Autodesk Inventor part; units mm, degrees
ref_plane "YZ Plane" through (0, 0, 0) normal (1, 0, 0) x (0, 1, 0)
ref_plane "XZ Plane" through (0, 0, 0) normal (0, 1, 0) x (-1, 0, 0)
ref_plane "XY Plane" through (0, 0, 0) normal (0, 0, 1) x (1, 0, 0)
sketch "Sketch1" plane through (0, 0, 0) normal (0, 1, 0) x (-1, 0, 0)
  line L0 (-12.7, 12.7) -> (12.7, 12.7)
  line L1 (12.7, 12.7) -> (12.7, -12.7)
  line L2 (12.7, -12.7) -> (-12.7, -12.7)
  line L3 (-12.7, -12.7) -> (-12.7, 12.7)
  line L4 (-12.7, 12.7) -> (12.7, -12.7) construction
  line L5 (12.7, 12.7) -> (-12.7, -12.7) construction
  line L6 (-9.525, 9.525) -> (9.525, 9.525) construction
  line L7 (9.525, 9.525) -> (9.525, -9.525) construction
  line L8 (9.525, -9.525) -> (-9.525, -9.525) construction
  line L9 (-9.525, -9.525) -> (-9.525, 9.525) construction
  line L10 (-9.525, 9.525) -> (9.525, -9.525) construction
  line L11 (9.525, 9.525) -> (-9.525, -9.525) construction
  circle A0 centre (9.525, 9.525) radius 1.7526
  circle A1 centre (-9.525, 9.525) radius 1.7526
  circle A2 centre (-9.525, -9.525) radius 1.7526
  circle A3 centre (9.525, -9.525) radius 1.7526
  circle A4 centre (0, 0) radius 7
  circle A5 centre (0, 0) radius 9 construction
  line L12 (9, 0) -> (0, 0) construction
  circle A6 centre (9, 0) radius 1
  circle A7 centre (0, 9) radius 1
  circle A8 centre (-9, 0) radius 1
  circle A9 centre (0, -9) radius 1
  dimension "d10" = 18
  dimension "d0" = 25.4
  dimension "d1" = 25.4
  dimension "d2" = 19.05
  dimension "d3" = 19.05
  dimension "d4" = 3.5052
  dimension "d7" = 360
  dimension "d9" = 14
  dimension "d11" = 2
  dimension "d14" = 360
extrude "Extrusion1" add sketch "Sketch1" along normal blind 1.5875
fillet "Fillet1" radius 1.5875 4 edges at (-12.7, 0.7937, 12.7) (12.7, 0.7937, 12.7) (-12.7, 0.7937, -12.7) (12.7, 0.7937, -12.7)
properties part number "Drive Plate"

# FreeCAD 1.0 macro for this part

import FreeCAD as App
import Part
import Sketcher
Q = App.Units.Quantity


def edges_at(feature, points):
    """Names of the edges that pass closest to the given points."""
    edges = feature.Shape.Edges
    near = lambda p: min(range(len(edges)), key=lambda i: edges[i].distToShape(Part.Vertex(*p))[0])
    return sorted({f"Edge{near(p) + 1}" for p in points})

doc = App.newDocument("Part")
body = doc.addObject("PartDesign::Body", "Body")

# Sketch on XZ plane
sketch1 = body.newObject("Sketcher::SketchObject", "Sketch")
sketch1.AttachmentSupport = (doc.getObject("XZ_Plane"), [""])
sketch1.MapMode = "FlatFace"
sketch1.addGeometry(Part.LineSegment(App.Vector(-12.7, 12.7, 0), App.Vector(12.7, 12.7, 0)), False)
sketch1.addGeometry(Part.LineSegment(App.Vector(12.7, 12.7, 0), App.Vector(12.7, -12.7, 0)), False)
sketch1.addGeometry(Part.LineSegment(App.Vector(12.7, -12.7, 0), App.Vector(-12.7, -12.7, 0)), False)
sketch1.addGeometry(Part.LineSegment(App.Vector(-12.7, -12.7, 0), App.Vector(-12.7, 12.7, 0)), False)
sketch1.addGeometry(Part.Circle(App.Vector(9.5, -9.5, 0), App.Vector(0, 0, 1), 1.8), False)
sketch1.addGeometry(Part.Circle(App.Vector(0, -9, 0), App.Vector(0, 0, 1), 1), False)
sketch1.addGeometry(Part.Circle(App.Vector(9, 0, 0), App.Vector(0, 0, 1), 1), False)
sketch1.addGeometry(Part.Circle(App.Vector(0, 0, 0), App.Vector(0, 0, 1), 7), False)
sketch1.addGeometry(Part.Circle(App.Vector(-9.5, -9.5, 0), App.Vector(0, 0, 1), 1.8), False)
sketch1.addGeometry(Part.Circle(App.Vector(-9, 0, 0), App.Vector(0, 0, 1), 1), False)
sketch1.addGeometry(Part.Circle(App.Vector(9.5, 9.5, 0), App.Vector(0, 0, 1), 1.8), False)
sketch1.addGeometry(Part.Circle(App.Vector(0, 9, 0), App.Vector(0, 0, 1), 1), False)
sketch1.addGeometry(Part.Circle(App.Vector(-9.5, 9.5, 0), App.Vector(0, 0, 1), 1.8), False)
sketch1.addConstraint(Sketcher.Constraint("Coincident", 0, 2, 1, 1))
sketch1.addConstraint(Sketcher.Constraint("Coincident", 1, 2, 2, 1))
sketch1.addConstraint(Sketcher.Constraint("Coincident", 2, 2, 3, 1))
sketch1.addConstraint(Sketcher.Constraint("Coincident", 3, 2, 0, 1))
sketch1.addConstraint(Sketcher.Constraint("Horizontal", 0))
sketch1.addConstraint(Sketcher.Constraint("Vertical", 1))
sketch1.addConstraint(Sketcher.Constraint("Horizontal", 2))
sketch1.addConstraint(Sketcher.Constraint("Vertical", 3))
sketch1.addConstraint(Sketcher.Constraint("Coincident", 7, 3, -1, 1))
sketch1.addConstraint(Sketcher.Constraint("Equal", 5, 6))
sketch1.addConstraint(Sketcher.Constraint("Equal", 4, 8))
sketch1.addConstraint(Sketcher.Constraint("Equal", 6, 9))
sketch1.addConstraint(Sketcher.Constraint("Equal", 8, 10))
sketch1.addConstraint(Sketcher.Constraint("Equal", 9, 11))
sketch1.addConstraint(Sketcher.Constraint("Equal", 10, 12))
sketch1.addConstraint(Sketcher.Constraint("Symmetric", 6, 3, 9, 3, -1, 1))
sketch1.addConstraint(Sketcher.Constraint("Symmetric", 8, 3, 10, 3, -1, 1))
sketch1.addConstraint(Sketcher.Constraint("Symmetric", 5, 3, 11, 3, -1, 1))
sketch1.addConstraint(Sketcher.Constraint("Symmetric", 4, 3, 12, 3, -1, 1))
sketch1.addConstraint(Sketcher.Constraint("Symmetric", 0, 2, 2, 2, -1, 1))
sketch1.addConstraint(Sketcher.Constraint("Symmetric", 4, 3, 8, 3, -2))
sketch1.addConstraint(Sketcher.Constraint("PointOnObject", 5, 3, -2))
sketch1.addConstraint(Sketcher.Constraint("PointOnObject", 6, 3, -1))
sketch1.addConstraint(Sketcher.Constraint("Equal", 2, 1))
sketch1.addConstraint(Sketcher.Constraint("DistanceX", 0, 1, 0, 2, Q("1 in")))
sketch1.addConstraint(Sketcher.Constraint("Diameter", 4, Q("0.138 in")))
sketch1.addConstraint(Sketcher.Constraint("Diameter", 5, 2.0))
sketch1.addConstraint(Sketcher.Constraint("Diameter", 7, 14.0))
sketch1.addConstraint(Sketcher.Constraint("DistanceX", 8, 3, 4, 3, Q("0.75 in")))
sketch1.addConstraint(Sketcher.Constraint("DistanceY", 4, 3, 10, 3, Q("0.75 in")))
sketch1.addConstraint(Sketcher.Constraint("DistanceX", 9, 3, 6, 3, 18.0))
sketch1.addConstraint(Sketcher.Constraint("DistanceY", 5, 3, 11, 3, 18.0))
pad1 = body.newObject("PartDesign::Pad", "Pad")
pad1.Profile = sketch1
pad1.Length = Q("0.0625 in")
pad1.Reversed = True
doc.recompute()

fillet = body.newObject("PartDesign::Fillet", "Fillet")
fillet.Base = (pad1, edges_at(pad1, [
    (-12.7, 0.794, 12.7),
    (12.7, 0.794, 12.7),
    (-12.7, 0.794, -12.7),
    (12.7, 0.794, -12.7),
]))
fillet.Radius = Q("0.0625 in")

doc.recompute()
